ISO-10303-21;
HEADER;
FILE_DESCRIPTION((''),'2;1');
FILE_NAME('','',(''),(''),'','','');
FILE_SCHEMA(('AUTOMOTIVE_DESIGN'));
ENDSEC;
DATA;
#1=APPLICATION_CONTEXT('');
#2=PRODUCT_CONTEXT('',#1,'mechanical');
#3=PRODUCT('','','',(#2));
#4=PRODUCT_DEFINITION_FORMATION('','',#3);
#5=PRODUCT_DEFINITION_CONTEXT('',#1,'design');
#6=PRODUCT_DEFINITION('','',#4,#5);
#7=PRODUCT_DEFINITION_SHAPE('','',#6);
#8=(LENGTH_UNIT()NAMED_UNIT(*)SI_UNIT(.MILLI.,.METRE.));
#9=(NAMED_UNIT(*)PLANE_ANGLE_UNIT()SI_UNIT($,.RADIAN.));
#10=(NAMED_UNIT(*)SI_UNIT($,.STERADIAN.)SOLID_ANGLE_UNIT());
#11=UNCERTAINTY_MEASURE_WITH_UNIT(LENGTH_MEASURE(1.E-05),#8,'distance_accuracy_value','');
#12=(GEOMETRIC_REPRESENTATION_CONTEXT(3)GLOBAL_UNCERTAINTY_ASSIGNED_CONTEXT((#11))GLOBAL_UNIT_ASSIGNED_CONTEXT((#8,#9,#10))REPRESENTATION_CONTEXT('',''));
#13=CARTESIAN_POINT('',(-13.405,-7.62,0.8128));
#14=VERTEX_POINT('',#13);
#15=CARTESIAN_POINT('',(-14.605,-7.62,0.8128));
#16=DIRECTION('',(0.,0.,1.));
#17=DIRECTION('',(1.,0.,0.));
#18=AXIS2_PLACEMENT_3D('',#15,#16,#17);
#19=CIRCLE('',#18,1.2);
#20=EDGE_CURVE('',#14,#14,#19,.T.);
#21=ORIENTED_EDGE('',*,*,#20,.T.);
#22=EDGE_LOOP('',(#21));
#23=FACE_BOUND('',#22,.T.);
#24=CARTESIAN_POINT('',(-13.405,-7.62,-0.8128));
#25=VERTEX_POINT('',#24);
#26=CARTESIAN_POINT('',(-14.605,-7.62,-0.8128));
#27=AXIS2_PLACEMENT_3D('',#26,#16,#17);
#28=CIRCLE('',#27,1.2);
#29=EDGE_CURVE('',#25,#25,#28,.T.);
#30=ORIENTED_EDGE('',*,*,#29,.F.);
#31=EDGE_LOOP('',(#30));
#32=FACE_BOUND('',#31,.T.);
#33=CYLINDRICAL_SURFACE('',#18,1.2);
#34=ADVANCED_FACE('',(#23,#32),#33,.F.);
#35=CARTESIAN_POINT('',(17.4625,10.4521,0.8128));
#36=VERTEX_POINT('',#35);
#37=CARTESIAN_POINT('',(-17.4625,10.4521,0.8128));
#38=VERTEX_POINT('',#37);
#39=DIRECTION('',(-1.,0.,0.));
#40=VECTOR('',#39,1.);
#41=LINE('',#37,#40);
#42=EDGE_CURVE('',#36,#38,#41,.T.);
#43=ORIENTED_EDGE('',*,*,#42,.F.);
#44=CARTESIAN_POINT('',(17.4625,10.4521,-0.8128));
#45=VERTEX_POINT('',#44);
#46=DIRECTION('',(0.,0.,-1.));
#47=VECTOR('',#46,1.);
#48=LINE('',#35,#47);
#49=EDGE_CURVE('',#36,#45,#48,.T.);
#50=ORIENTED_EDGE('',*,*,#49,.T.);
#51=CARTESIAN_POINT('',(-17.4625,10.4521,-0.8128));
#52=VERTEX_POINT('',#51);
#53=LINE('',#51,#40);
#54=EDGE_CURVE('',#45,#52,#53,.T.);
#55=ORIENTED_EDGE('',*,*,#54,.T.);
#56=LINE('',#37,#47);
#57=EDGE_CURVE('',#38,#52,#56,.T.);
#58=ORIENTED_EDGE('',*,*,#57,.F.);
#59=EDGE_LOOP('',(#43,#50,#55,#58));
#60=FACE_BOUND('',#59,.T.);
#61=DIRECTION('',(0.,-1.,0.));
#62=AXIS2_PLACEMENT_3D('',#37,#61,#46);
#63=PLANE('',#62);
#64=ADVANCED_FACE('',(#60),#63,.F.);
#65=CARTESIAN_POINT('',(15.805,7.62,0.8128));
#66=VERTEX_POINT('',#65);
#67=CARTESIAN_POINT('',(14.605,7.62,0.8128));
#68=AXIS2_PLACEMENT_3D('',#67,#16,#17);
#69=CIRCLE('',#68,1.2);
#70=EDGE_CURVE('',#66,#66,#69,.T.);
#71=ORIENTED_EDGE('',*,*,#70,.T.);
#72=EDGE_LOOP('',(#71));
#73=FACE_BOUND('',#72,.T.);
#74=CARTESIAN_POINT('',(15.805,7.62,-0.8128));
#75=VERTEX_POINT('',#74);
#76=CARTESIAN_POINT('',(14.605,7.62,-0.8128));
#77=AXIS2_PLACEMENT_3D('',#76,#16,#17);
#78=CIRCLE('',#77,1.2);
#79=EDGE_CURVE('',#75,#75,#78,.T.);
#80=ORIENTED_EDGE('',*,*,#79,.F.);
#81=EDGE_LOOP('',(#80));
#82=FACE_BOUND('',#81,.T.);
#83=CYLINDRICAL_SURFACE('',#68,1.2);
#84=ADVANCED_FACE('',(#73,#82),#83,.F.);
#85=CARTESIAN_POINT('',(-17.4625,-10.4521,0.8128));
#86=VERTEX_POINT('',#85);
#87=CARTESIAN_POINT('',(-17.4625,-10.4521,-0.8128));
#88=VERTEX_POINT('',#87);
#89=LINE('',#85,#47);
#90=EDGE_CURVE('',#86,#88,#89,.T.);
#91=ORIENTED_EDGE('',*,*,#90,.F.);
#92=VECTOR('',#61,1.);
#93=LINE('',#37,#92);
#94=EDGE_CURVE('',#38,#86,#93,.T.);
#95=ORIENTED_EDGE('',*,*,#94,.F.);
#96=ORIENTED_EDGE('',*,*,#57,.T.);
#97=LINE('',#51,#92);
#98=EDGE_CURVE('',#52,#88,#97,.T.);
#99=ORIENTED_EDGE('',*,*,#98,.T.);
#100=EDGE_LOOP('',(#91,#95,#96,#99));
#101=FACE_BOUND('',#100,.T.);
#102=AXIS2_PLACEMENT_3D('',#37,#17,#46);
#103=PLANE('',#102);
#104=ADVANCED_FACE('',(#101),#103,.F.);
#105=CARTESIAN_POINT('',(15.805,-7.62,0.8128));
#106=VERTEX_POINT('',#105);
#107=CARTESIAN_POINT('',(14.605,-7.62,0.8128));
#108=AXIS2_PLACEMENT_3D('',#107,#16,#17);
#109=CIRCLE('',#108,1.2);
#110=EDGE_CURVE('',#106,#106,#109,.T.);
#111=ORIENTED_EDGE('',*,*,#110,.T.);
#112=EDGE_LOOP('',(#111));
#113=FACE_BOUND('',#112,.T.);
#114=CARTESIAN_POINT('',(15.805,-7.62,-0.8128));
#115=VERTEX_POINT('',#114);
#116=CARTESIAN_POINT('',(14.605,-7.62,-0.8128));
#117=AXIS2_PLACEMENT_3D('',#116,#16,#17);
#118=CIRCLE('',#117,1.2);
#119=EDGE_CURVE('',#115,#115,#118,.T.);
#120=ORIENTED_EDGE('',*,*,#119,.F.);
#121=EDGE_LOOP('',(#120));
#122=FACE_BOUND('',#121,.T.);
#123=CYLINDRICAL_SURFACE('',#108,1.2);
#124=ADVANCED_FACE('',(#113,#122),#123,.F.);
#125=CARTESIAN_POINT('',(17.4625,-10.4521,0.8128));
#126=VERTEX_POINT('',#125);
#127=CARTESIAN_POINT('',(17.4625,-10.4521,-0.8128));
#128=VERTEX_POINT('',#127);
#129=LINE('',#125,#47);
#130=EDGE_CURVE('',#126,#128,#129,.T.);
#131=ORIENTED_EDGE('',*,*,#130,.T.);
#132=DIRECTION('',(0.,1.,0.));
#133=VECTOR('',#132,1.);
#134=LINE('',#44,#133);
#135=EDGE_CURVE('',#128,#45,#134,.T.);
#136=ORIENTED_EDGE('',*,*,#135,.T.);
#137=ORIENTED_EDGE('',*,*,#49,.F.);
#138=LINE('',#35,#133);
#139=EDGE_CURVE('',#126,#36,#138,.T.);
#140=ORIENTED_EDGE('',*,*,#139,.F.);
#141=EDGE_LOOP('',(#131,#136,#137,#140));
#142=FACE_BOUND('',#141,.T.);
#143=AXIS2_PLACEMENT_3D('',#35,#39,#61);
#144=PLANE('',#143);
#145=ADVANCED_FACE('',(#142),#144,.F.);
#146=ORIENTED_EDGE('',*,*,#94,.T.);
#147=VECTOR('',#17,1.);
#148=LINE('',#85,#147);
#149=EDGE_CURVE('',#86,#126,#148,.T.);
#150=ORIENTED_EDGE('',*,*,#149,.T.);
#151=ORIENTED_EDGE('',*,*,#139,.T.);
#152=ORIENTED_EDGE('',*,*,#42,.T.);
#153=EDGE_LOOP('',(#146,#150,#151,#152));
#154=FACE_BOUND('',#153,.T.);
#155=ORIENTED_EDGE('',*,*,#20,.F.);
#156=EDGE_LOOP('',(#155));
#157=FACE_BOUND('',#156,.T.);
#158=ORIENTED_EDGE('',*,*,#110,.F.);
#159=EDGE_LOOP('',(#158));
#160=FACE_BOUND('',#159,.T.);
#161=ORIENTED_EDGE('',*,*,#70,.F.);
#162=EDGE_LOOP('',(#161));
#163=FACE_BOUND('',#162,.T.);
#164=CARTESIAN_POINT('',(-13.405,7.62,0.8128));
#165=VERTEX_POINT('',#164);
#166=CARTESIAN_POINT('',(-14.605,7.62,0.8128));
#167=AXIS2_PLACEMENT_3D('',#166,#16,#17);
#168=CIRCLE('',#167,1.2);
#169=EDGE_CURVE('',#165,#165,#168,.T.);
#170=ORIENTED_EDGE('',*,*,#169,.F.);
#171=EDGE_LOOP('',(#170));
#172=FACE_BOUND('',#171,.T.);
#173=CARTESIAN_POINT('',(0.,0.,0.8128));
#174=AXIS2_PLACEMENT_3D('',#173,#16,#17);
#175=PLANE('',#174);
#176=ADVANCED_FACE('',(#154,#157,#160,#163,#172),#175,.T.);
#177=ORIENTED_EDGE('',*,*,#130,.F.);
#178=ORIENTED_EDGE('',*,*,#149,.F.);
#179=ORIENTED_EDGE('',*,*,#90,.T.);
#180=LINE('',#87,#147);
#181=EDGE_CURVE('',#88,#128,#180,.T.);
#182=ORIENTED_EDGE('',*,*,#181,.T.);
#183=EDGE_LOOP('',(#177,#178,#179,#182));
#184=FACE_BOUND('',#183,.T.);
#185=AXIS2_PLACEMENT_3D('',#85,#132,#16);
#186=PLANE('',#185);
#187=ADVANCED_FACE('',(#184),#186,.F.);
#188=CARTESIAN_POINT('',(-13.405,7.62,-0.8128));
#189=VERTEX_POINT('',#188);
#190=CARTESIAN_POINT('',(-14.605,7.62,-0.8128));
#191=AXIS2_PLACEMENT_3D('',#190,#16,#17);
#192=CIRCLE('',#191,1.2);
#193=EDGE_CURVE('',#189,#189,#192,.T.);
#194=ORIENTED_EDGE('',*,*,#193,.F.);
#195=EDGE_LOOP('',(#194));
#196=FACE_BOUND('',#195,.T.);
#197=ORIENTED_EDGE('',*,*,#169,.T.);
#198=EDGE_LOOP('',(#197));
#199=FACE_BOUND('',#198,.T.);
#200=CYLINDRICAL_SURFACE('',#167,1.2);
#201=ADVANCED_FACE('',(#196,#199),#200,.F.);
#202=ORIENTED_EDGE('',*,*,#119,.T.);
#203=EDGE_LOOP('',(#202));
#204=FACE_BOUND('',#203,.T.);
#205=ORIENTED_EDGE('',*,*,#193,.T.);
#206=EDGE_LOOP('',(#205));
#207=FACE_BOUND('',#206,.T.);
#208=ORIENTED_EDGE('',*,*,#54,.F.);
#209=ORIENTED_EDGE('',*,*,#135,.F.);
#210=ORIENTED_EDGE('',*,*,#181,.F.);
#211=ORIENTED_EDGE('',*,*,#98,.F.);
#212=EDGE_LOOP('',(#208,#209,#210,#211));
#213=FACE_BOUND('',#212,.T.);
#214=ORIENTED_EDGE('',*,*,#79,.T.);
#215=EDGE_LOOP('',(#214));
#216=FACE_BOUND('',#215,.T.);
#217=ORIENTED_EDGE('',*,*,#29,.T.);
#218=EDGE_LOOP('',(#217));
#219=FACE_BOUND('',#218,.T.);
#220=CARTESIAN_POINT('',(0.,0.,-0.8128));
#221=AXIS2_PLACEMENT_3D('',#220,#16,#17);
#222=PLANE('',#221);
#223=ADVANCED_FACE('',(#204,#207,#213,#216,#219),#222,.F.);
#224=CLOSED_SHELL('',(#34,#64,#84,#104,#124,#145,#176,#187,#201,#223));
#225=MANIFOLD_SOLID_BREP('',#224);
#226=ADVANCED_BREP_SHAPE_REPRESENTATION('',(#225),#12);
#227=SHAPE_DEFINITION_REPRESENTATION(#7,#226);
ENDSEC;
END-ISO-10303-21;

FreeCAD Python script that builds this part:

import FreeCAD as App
import Part
import Sketcher

V = App.Vector
Q = App.Units.Quantity

doc = App.newDocument("Part")
body = doc.addObject("PartDesign::Body", "Body")

sketch1 = doc.addObject("Sketcher::SketchObject", "Sketch")
body.addObject(sketch1)
sketch1.AttachmentSupport = (doc.XY_Plane, [""])
sketch1.MapMode = "FlatFace"
sketch1.addGeometry(Part.LineSegment(V(-17, 10, 0), V(-17, -10, 0)), False)
sketch1.addGeometry(Part.LineSegment(V(-17, -10, 0), V(17, -10, 0)), False)
sketch1.addGeometry(Part.LineSegment(V(17, -10, 0), V(17, 10, 0)), False)
sketch1.addGeometry(Part.LineSegment(V(17, 10, 0), V(-17, 10, 0)), False)
sketch1.addConstraint(Sketcher.Constraint("Coincident", 0, 2, 1, 1))
sketch1.addConstraint(Sketcher.Constraint("Coincident", 1, 2, 2, 1))
sketch1.addConstraint(Sketcher.Constraint("Coincident", 2, 2, 3, 1))
sketch1.addConstraint(Sketcher.Constraint("Coincident", 3, 2, 0, 1))
sketch1.addConstraint(Sketcher.Constraint("Vertical", 0))
sketch1.addConstraint(Sketcher.Constraint("Horizontal", 1))
sketch1.addConstraint(Sketcher.Constraint("Vertical", 2))
sketch1.addConstraint(Sketcher.Constraint("Horizontal", 3))
sketch1.addConstraint(Sketcher.Constraint("Symmetric", 0, 2, 2, 2, -1, 1))
sketch1.addConstraint(Sketcher.Constraint("DistanceX", 1, 1, 1, 2, Q("1.375 in")))
sketch1.addConstraint(Sketcher.Constraint("DistanceY", 0, 2, 0, 1, Q("0.823 in")))
pad1 = doc.addObject("PartDesign::Pad", "Pad")
body.addObject(pad1)
pad1.Profile = sketch1
pad1.Length = Q("0.064 in")
pad1.Midplane = True

sketch2 = doc.addObject("Sketcher::SketchObject", "Sketch001")
body.addObject(sketch2)
sketch2.AttachmentSupport = (doc.XY_Plane, [""])
sketch2.MapMode = "FlatFace"
sketch2.AttachmentOffset = App.Placement(V(0, 0, 0.032 * 25.4), App.Rotation())
sketch2.addGeometry(Part.Circle(V(-14.6, 7.6, 0), V(0, 0, 1), 1.2), False)
sketch2.addGeometry(Part.Circle(V(14.6, 7.6, 0), V(0, 0, 1), 1.2), False)
sketch2.addGeometry(Part.Circle(V(14.6, -7.6, 0), V(0, 0, 1), 1.2), False)
sketch2.addGeometry(Part.Circle(V(-14.6, -7.6, 0), V(0, 0, 1), 1.2), False)
sketch2.addConstraint(Sketcher.Constraint("Equal", 0, 1))
sketch2.addConstraint(Sketcher.Constraint("Equal", 1, 2))
sketch2.addConstraint(Sketcher.Constraint("Equal", 2, 3))
sketch2.addConstraint(Sketcher.Constraint("Symmetric", 0, 3, 2, 3, -1, 1))
sketch2.addConstraint(Sketcher.Constraint("Symmetric", 1, 3, 3, 3, -1, 1))
sketch2.addConstraint(Sketcher.Constraint("Symmetric", 0, 3, 1, 3, -2))
sketch2.addConstraint(Sketcher.Constraint("DistanceY", -1, 1, 0, 3, Q("0.3 in")))
sketch2.addConstraint(Sketcher.Constraint("Diameter", 0, Q("2.4 mm")))
sketch2.addConstraint(Sketcher.Constraint("DistanceX", 0, 3, 1, 3, Q("1.15 in")))
doc.recompute()
hole = doc.addObject("PartDesign::Hole", "Hole")
body.addObject(hole)
hole.Profile = sketch2
hole.ThreadType = "None"
hole.Diameter = 2.4
hole.DepthType = "ThroughAll"

doc.recompute()
